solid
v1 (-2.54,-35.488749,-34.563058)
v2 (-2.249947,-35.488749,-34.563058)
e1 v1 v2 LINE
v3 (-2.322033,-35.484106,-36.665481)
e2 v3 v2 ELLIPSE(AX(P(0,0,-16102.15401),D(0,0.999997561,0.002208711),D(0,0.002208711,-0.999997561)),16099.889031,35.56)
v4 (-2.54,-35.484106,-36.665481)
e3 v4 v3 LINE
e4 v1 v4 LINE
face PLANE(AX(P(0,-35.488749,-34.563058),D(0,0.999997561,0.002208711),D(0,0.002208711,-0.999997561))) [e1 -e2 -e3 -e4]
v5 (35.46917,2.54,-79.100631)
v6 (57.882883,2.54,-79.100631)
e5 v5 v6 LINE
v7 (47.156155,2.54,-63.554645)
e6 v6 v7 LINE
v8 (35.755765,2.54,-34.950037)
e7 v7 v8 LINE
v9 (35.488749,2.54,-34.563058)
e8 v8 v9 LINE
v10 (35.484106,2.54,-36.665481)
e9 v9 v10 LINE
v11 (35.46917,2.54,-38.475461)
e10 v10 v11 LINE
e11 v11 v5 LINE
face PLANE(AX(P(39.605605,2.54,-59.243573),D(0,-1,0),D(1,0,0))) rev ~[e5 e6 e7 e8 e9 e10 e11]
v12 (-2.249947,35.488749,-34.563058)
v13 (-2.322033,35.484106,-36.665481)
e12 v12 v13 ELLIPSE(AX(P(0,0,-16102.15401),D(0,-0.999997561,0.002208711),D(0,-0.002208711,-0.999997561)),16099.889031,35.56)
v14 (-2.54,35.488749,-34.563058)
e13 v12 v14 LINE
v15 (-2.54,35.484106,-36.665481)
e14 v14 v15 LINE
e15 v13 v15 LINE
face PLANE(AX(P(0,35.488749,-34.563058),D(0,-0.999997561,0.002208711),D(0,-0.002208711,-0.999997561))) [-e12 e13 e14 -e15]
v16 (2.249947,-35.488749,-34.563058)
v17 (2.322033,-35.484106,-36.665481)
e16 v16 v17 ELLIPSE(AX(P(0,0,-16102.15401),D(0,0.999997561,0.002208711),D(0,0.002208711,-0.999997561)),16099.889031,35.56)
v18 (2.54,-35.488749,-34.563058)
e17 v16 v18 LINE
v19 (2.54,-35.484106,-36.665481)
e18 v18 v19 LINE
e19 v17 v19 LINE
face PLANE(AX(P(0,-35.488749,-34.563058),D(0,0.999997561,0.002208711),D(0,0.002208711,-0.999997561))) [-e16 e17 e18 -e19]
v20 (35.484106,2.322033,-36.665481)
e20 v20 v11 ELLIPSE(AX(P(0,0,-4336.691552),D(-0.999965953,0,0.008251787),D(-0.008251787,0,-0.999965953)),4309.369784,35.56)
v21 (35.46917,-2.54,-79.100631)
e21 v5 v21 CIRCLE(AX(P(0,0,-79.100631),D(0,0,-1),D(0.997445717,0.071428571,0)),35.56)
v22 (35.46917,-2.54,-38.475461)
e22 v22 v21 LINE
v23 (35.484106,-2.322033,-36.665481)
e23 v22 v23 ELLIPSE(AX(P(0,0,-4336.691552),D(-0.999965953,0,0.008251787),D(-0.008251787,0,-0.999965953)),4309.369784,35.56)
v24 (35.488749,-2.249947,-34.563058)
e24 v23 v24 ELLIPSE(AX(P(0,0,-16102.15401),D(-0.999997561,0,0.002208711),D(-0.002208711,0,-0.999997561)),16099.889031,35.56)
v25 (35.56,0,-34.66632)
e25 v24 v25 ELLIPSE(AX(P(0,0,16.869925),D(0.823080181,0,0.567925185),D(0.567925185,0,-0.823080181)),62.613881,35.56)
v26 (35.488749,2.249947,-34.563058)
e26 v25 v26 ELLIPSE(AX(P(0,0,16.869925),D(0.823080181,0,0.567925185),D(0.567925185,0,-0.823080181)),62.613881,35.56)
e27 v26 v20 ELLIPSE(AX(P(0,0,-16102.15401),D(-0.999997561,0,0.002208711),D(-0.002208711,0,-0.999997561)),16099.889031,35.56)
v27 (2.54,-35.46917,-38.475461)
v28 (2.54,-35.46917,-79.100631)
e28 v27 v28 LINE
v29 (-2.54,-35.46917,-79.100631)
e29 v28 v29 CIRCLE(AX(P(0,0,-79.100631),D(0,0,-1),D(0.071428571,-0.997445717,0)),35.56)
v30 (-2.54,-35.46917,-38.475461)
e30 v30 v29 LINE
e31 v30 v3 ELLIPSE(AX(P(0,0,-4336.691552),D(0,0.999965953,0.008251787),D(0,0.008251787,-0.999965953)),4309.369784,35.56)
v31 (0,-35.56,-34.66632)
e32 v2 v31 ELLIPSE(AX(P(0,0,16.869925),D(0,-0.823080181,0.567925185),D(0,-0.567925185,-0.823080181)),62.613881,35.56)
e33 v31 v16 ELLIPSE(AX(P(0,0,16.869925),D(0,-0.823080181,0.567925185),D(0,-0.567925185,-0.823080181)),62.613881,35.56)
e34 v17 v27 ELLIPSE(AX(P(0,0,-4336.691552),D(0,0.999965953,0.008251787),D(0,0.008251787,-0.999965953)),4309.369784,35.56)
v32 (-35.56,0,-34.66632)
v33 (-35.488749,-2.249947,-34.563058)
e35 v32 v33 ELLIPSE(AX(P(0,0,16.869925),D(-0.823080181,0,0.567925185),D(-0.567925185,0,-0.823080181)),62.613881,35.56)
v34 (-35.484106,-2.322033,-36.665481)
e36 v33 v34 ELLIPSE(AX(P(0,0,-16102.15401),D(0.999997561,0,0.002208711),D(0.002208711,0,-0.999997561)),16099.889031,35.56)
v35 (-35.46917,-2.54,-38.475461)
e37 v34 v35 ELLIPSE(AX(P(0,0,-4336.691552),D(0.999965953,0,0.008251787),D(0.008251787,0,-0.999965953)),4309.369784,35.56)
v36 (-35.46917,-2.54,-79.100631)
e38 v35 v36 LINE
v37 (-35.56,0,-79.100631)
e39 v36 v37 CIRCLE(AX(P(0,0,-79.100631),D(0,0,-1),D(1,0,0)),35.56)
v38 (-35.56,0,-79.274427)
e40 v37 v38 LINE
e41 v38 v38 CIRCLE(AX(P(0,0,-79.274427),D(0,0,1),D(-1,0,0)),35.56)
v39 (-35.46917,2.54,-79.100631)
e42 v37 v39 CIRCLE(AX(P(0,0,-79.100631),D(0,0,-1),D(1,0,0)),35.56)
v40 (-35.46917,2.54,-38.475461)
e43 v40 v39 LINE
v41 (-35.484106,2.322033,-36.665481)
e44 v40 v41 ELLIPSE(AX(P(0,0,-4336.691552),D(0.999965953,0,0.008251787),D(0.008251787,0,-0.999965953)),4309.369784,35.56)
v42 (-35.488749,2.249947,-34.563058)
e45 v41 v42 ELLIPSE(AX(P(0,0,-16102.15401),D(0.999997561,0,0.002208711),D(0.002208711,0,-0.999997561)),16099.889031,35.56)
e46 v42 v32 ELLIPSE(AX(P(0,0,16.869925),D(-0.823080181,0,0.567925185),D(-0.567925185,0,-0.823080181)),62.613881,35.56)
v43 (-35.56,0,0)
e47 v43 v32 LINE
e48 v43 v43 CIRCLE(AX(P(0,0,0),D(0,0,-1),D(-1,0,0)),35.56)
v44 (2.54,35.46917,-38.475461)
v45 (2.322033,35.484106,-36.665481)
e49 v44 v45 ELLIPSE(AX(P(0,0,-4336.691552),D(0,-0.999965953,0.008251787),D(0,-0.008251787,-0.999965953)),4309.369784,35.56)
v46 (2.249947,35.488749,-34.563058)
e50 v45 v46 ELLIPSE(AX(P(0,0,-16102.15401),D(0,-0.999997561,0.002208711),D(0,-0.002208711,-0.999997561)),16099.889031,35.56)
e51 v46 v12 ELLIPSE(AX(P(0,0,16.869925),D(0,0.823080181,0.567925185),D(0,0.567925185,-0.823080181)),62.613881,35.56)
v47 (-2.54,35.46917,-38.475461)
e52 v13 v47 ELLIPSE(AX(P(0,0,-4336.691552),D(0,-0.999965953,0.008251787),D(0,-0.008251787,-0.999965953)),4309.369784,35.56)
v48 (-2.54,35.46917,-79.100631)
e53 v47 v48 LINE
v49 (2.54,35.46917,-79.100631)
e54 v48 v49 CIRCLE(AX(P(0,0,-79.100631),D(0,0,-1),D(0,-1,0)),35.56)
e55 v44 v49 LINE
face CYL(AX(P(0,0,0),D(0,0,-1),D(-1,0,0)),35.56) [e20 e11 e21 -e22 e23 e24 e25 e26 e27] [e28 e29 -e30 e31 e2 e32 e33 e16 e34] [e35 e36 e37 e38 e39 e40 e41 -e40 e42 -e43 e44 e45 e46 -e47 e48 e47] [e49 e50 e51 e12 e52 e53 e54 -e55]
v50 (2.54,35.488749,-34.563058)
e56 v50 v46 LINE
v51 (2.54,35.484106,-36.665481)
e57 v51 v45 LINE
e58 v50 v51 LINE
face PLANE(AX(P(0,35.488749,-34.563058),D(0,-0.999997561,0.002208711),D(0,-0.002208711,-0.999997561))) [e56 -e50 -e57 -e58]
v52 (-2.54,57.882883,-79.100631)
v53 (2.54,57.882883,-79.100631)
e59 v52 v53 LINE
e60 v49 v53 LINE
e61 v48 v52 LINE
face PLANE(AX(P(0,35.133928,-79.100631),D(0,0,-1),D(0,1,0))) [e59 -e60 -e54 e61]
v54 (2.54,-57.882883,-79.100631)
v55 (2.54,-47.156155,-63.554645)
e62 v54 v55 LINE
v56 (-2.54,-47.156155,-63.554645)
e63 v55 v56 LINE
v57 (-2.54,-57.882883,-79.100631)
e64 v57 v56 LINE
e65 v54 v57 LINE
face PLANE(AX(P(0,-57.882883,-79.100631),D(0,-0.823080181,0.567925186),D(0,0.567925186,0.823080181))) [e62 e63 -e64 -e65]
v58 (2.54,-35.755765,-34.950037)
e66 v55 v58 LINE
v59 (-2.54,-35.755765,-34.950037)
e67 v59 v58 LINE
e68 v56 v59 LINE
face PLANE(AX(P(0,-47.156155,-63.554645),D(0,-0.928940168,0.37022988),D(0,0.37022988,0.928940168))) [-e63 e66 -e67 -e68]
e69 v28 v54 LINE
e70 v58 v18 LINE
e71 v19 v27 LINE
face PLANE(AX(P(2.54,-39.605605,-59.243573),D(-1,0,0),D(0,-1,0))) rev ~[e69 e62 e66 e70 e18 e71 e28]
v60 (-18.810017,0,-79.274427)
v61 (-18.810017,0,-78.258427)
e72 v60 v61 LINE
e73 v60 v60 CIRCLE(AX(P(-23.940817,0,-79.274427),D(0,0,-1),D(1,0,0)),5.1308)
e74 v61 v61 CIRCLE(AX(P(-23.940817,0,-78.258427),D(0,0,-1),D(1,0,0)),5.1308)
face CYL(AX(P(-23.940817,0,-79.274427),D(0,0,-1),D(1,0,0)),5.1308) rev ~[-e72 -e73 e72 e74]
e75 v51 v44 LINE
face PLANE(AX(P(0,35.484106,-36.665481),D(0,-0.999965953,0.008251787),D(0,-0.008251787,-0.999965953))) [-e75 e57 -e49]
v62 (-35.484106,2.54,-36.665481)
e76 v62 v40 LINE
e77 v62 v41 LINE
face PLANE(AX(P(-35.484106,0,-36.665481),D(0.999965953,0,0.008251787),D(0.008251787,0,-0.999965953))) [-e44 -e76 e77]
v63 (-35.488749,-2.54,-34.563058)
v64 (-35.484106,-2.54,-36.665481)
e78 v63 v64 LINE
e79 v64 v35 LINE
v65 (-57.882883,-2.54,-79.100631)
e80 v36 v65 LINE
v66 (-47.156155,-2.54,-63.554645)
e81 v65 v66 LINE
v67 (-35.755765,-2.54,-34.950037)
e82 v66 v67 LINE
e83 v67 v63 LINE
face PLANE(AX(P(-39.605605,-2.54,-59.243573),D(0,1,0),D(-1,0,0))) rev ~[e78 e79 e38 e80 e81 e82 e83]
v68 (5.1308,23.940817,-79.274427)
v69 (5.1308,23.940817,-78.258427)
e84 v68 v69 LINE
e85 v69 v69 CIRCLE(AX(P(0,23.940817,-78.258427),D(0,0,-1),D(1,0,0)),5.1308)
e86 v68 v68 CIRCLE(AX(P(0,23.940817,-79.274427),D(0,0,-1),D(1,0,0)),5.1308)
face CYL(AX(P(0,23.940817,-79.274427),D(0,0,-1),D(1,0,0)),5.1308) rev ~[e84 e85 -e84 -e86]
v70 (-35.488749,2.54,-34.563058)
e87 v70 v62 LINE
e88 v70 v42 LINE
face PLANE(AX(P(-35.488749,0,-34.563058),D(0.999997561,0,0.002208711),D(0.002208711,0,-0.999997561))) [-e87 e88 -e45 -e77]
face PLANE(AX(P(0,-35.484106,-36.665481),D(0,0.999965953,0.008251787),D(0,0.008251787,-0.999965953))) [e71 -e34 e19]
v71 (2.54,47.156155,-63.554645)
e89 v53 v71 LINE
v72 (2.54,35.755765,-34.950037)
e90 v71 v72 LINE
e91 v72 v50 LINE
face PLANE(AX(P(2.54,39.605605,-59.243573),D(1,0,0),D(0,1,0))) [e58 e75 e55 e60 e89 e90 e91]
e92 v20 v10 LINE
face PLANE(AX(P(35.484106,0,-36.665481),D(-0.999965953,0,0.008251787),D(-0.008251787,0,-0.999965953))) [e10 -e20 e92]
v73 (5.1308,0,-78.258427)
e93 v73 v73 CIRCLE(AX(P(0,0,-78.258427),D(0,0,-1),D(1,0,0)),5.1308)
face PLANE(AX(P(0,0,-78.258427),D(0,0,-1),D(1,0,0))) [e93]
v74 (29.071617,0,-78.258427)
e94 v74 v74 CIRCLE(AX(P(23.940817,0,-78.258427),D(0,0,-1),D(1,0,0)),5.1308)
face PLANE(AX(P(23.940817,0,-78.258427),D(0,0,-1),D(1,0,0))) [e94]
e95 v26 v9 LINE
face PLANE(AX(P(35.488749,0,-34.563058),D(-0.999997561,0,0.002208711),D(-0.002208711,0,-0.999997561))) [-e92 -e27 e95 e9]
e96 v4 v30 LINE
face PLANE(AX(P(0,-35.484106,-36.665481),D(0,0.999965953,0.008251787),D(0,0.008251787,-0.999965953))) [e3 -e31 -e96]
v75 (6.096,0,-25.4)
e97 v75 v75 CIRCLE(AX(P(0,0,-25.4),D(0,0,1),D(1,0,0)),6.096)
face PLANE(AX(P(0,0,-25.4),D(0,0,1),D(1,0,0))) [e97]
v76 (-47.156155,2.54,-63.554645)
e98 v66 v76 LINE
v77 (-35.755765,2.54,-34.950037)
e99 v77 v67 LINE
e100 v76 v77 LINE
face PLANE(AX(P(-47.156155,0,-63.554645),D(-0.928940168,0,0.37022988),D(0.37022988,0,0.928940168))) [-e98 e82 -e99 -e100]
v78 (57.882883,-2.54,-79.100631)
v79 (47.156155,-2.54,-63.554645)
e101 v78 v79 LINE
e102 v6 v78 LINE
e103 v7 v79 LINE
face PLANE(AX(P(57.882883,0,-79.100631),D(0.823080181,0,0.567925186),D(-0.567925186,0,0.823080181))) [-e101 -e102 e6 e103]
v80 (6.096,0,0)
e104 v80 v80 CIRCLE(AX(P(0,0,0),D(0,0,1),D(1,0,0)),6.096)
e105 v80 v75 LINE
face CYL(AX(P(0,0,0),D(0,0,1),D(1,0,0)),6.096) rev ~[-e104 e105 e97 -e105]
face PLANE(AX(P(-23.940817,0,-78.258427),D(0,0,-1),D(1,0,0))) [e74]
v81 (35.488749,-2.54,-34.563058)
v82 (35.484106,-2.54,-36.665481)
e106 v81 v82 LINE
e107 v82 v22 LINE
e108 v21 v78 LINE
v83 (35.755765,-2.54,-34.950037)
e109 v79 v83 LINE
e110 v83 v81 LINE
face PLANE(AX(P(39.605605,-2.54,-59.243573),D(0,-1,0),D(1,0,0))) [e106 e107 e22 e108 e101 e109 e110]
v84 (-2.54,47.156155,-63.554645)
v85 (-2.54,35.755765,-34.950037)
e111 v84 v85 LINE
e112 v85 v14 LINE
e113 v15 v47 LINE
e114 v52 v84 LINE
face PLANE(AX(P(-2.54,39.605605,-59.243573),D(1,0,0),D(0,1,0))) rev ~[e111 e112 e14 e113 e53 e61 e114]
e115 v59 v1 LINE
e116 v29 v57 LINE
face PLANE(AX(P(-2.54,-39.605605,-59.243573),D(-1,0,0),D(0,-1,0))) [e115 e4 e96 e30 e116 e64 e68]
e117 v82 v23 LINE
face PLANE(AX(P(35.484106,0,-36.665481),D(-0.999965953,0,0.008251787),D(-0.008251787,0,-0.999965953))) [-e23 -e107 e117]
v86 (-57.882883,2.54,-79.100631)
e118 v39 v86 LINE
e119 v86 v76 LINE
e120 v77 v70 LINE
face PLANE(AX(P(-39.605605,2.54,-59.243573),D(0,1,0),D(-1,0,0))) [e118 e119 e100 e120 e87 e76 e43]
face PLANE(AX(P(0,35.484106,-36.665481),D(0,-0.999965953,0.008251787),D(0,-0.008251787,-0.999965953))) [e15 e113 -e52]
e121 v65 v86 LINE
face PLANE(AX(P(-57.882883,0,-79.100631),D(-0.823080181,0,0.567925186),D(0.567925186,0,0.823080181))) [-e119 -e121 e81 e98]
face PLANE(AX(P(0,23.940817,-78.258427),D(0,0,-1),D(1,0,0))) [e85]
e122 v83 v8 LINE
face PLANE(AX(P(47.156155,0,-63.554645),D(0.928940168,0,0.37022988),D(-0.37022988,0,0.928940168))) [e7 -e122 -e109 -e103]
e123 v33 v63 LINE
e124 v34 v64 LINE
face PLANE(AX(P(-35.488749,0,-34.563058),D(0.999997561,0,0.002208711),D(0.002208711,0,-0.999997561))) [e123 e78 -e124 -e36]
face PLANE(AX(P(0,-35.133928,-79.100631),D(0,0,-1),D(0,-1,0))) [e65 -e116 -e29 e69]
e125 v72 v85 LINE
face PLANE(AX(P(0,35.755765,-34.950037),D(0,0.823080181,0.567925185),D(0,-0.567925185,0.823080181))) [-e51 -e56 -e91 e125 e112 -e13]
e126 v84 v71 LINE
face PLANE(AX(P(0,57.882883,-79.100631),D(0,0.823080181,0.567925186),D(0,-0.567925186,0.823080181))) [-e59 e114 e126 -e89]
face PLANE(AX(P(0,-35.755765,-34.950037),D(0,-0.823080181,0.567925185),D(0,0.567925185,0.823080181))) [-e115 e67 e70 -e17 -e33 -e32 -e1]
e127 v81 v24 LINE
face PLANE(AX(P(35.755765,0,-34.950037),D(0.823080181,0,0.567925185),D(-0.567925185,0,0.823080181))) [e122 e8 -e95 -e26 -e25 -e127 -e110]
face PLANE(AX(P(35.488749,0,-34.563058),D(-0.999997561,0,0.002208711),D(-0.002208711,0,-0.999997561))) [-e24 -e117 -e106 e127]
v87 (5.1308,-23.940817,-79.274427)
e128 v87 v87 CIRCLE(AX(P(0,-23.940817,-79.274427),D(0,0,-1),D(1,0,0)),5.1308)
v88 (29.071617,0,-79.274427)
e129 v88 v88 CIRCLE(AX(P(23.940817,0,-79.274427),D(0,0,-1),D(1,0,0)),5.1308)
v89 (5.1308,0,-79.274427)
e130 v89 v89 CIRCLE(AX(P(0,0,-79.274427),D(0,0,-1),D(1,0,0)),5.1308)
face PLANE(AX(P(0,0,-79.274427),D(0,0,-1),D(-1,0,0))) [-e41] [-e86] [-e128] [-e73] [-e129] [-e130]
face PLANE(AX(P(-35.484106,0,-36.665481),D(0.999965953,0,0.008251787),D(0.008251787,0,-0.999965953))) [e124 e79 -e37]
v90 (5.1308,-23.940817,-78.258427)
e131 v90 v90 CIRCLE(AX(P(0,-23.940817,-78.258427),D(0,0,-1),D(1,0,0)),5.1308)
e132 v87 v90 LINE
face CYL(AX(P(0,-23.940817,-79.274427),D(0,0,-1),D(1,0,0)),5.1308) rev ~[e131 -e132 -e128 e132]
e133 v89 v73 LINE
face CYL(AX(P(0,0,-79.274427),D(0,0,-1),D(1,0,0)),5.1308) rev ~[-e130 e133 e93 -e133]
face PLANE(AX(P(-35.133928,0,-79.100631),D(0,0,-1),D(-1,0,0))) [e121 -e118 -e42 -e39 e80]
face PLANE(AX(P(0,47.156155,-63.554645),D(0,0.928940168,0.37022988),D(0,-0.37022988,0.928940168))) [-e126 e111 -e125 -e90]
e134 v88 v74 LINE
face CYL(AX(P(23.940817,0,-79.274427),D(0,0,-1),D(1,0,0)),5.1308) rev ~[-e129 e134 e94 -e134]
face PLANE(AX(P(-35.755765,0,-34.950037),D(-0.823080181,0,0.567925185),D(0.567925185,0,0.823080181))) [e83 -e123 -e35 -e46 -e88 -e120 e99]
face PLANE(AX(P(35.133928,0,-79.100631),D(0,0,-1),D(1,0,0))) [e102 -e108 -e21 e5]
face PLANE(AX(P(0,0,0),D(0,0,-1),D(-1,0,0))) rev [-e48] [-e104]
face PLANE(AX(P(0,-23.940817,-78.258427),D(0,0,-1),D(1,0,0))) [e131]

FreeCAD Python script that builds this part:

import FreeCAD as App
import Part
import Sketcher
from FreeCAD import Vector
Q = App.Units.Quantity


def add_polygon(sketch, points):
    """Adds a closed chain of lines whose ends are joined by coincident constraints."""
    first, n = sketch.GeometryCount, len(points)
    for a, b in zip(points, points[1:] + points[:1]):
        sketch.addGeometry(Part.LineSegment(App.Vector(*a, 0), App.Vector(*b, 0)), False)
    for i in range(n):
        sketch.addConstraint(Sketcher.Constraint("Coincident", first + i, 2, first + (i + 1) % n, 1))

doc = App.newDocument("Part")
body = doc.addObject("PartDesign::Body", "Body")

sketch1 = doc.addObject("Sketcher::SketchObject", "Sketch")
body.addObject(sketch1)
sketch1.AttachmentSupport = (doc.XZ_Plane, [""])
sketch1.MapMode = "FlatFace"
add_polygon(sketch1, [(-36, -79), (0, -79), (0, 0), (-36, 0)])
sketch1.addConstraint([
    Sketcher.Constraint("Horizontal", 0),
    Sketcher.Constraint("Vertical", 1),
    Sketcher.Constraint("Horizontal", 2),
    Sketcher.Constraint("Vertical", 3),
    Sketcher.Constraint("Coincident", 1, 2, -1, 1),
    Sketcher.Constraint("DistanceX", 0, 1, 0, 2, Q("1.4 in")),
    Sketcher.Constraint("DistanceY", 1, 1, 1, 2, Q("79.274427 mm")),
])
revolution = doc.addObject("PartDesign::Revolution", "Revolution")
body.addObject(revolution)
revolution.Profile = sketch1
revolution.ReferenceAxis = (sketch1, ["V_Axis"])
revolution.Angle = 360

sketch2 = doc.addObject("Sketcher::SketchObject", "Sketch001")
body.addObject(sketch2)
sketch2.AttachmentSupport = (doc.XZ_Plane, [""])
sketch2.MapMode = "FlatFace"
add_polygon(sketch2, [(35.484106, -36.665481), (35.133928, -79.100631), (57.882883, -79.100631), (47.156155, -63.554645), (35.755765, -34.950037), (35.488749, -34.563058)])
sketch2.addConstraint([
    Sketcher.Constraint("Horizontal", 1),
    Sketcher.Constraint("Distance", 4, Q("0.470159 mm")),
    Sketcher.Constraint("DistanceX", 1, 1, 1, 2, Q("22.748955 mm")),
    Sketcher.Constraint("DistanceX", -1, 1, 0, 2, Q("35.133928 mm")),
    Sketcher.Constraint("DistanceY", 0, 2, -1, 1, Q("79.100631 mm")),
    Sketcher.Constraint("DistanceX", -1, 1, 4, 2, Q("35.488749 mm")),
    Sketcher.Constraint("DistanceY", 5, 2, -1, 1, Q("36.665481 mm")),
    Sketcher.Constraint("DistanceX", 2, 2, 1, 2, Q("10.726728 mm")),
    Sketcher.Constraint("DistanceX", 3, 2, 2, 2, Q("11.40039 mm")),
    Sketcher.Constraint("DistanceY", 2, 2, 3, 2, Q("28.604608 mm")),
    Sketcher.Constraint("DistanceX", 5, 2, 3, 2, Q("0.271659 mm")),
    Sketcher.Constraint("Distance", 2, Q("18.887573 mm")),
])
pad1 = doc.addObject("PartDesign::Pad", "Pad")
body.addObject(pad1)
pad1.Profile = sketch2
pad1.Length = Q("0.2 in")
pad1.Midplane = True
body2 = doc.addObject("PartDesign::Body", "Body001")
doc.recompute()

body2.BaseFeature = body
doc.recompute()

body3 = doc.addObject("PartDesign::Body", "Body002")
body3.BaseFeature = body
body3.Placement = App.Placement(Vector(0, 0, 0), App.Rotation(Vector(0, 0, -1), 90))
boolean = doc.addObject("PartDesign::Boolean", "Boolean")
body2.addObject(boolean)
boolean.Type = "Fuse"
boolean.addObjects([body3])
doc.recompute()

body4 = doc.addObject("PartDesign::Body", "Body003")
body4.BaseFeature = body
body4.Placement = App.Placement(Vector(0, 0, 0), App.Rotation(Vector(0, 0, -1), 180))
boolean2 = doc.addObject("PartDesign::Boolean", "Boolean001")
body2.addObject(boolean2)
boolean2.Type = "Fuse"
boolean2.addObjects([body4])
doc.recompute()

body.Placement = App.Placement(Vector(0, 0, 0), App.Rotation(Vector(0, 0, -1), 270))
boolean3 = doc.addObject("PartDesign::Boolean", "Boolean002")
body2.addObject(boolean3)
boolean3.Type = "Fuse"
boolean3.addObjects([body])

sketch3 = doc.addObject("Sketcher::SketchObject", "Sketch002")
body2.addObject(sketch3)
sketch3.AttachmentSupport = (doc.getObject("XY_Plane001"), [""])
sketch3.MapMode = "FlatFace"
sketch3.AttachmentOffset = App.Placement(Vector(0, 0, -79.274427), App.Rotation())
sketch3.addGeometry([
    Part.Circle(Vector(0, 0, 0), Vector(0, 0, 1), 5),
    Part.Circle(Vector(-24, 0, 0), Vector(0, 0, 1), 5),
    Part.Circle(Vector(0, -24, 0), Vector(0, 0, 1), 5),
    Part.Circle(Vector(24, 0, 0), Vector(0, 0, 1), 5),
    Part.Circle(Vector(0, 24, 0), Vector(0, 0, 1), 5),
], False)
sketch3.addConstraint([
    Sketcher.Constraint("Coincident", 0, 3, -1, 1),
    Sketcher.Constraint("Equal", 0, 1),
    Sketcher.Constraint("Equal", 1, 2),
    Sketcher.Constraint("Equal", 2, 3),
    Sketcher.Constraint("Equal", 3, 4),
    Sketcher.Constraint("Symmetric", 1, 3, 3, 3, -1, 1),
    Sketcher.Constraint("Symmetric", 2, 3, 4, 3, -1, 1),
    Sketcher.Constraint("PointOnObject", 1, 3, -1),
    Sketcher.Constraint("PointOnObject", 2, 3, -2),
    Sketcher.Constraint("Diameter", 0, Q("0.404 in")),
    Sketcher.Constraint("DistanceX", 1, 3, -1, 1, Q("23.940817 mm")),
    Sketcher.Constraint("DistanceY", 2, 3, -1, 1, Q("23.940817 mm")),
])
pocket1 = doc.addObject("PartDesign::Pocket", "Pocket")
body2.addObject(pocket1)
pocket1.Profile = sketch3
pocket1.Length = Q("0.04 in")
pocket1.Reversed = True

sketch4 = doc.addObject("Sketcher::SketchObject", "Sketch003")
body2.addObject(sketch4)
sketch4.AttachmentSupport = (doc.getObject("XY_Plane001"), [""])
sketch4.MapMode = "FlatFace"
sketch4.addGeometry(Part.Circle(Vector(0, 0, 0), Vector(0, 0, 1), 6), False)
sketch4.addConstraint([
    Sketcher.Constraint("Coincident", 0, 3, -1, 1),
    Sketcher.Constraint("Diameter", 0, Q("0.48 in")),
])
pocket2 = doc.addObject("PartDesign::Pocket", "Pocket001")
body2.addObject(pocket2)
pocket2.Profile = sketch4
pocket2.Length = Q("1 in")

doc.recompute()
